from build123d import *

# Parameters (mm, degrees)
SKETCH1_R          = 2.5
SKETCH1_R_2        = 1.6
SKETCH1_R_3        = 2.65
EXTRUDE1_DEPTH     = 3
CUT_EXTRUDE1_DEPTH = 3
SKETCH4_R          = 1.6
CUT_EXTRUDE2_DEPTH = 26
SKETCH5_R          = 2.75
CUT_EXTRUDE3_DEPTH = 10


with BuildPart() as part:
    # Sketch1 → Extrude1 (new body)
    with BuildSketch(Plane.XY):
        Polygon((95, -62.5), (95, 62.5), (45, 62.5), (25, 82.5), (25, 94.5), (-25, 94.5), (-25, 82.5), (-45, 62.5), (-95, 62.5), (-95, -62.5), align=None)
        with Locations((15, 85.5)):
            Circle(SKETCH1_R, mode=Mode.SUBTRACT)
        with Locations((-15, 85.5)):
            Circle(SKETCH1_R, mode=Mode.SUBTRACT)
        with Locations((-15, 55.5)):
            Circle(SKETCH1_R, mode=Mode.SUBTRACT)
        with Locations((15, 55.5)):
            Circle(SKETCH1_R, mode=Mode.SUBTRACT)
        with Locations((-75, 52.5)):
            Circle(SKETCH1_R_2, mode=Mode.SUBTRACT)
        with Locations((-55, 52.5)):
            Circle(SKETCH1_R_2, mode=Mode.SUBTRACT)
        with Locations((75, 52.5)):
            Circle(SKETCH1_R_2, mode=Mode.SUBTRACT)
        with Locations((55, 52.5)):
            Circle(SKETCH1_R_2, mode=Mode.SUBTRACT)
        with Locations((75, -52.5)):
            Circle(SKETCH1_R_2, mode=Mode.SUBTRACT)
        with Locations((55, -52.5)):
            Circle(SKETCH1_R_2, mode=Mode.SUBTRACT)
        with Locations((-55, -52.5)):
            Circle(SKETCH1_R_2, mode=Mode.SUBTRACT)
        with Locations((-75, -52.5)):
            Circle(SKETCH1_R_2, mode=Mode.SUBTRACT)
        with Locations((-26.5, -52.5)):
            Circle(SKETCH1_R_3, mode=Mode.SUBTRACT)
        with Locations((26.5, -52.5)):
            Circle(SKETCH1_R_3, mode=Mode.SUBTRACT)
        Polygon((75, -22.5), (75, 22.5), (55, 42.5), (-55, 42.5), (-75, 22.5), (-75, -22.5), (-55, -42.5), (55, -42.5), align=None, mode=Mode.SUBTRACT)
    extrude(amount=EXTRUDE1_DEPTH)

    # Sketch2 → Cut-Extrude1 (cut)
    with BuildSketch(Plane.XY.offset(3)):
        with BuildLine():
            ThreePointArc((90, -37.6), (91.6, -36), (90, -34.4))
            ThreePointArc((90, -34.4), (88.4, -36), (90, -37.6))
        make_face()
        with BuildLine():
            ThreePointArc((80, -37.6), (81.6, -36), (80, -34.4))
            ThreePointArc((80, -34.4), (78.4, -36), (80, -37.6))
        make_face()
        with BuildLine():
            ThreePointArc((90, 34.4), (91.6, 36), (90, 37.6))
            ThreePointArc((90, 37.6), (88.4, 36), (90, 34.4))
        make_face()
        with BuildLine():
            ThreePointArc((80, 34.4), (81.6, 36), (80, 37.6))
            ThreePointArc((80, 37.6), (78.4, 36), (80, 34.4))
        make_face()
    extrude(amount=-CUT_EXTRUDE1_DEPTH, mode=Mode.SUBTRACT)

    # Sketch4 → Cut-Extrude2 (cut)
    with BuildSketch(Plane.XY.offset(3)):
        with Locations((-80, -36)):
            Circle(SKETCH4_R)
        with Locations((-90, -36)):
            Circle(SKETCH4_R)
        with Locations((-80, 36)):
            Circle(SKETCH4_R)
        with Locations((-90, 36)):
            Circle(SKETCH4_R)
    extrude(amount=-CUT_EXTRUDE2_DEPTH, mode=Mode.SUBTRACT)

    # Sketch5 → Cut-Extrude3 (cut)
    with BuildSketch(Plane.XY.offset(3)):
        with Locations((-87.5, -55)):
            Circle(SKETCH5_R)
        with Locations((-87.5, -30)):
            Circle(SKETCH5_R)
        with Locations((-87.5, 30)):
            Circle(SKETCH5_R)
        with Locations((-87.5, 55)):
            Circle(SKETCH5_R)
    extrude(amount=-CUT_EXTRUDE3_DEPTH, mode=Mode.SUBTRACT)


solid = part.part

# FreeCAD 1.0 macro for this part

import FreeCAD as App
import Part
import Sketcher

doc = App.newDocument("Part")
body = doc.addObject("PartDesign::Body", "Body")

sketch1 = doc.addObject("Sketcher::SketchObject", "Sketch")
body.addObject(sketch1)
sketch1.AttachmentSupport = (doc.XY_Plane, [""])
sketch1.MapMode = "FlatFace"
sketch1.addGeometry(Part.LineSegment(App.Vector(95, -62.5, 0), App.Vector(95, 62.5, 0)), False)
sketch1.addGeometry(Part.LineSegment(App.Vector(95, 62.5, 0), App.Vector(45, 62.5, 0)), False)
sketch1.addGeometry(Part.LineSegment(App.Vector(45, 62.5, 0), App.Vector(25, 82.5, 0)), False)
sketch1.addGeometry(Part.LineSegment(App.Vector(25, 82.5, 0), App.Vector(25, 94.5, 0)), False)
sketch1.addGeometry(Part.LineSegment(App.Vector(25, 94.5, 0), App.Vector(-25, 94.5, 0)), False)
sketch1.addGeometry(Part.LineSegment(App.Vector(-25, 94.5, 0), App.Vector(-25, 82.5, 0)), False)
sketch1.addGeometry(Part.LineSegment(App.Vector(-25, 82.5, 0), App.Vector(-45, 62.5, 0)), False)
sketch1.addGeometry(Part.LineSegment(App.Vector(-45, 62.5, 0), App.Vector(-95, 62.5, 0)), False)
sketch1.addGeometry(Part.LineSegment(App.Vector(-95, 62.5, 0), App.Vector(-95, -62.5, 0)), False)
sketch1.addGeometry(Part.LineSegment(App.Vector(-95, -62.5, 0), App.Vector(95, -62.5, 0)), False)
sketch1.addGeometry(Part.Circle(App.Vector(-75, -52.5, 0), App.Vector(0, 0, 1), 1.6), False)
sketch1.addGeometry(Part.Circle(App.Vector(-55, -52.5, 0), App.Vector(0, 0, 1), 1.6), False)
sketch1.addGeometry(Part.Circle(App.Vector(-26.5, -52.5, 0), App.Vector(0, 0, 1), 2.6), False)
sketch1.addGeometry(Part.Circle(App.Vector(26.5, -52.5, 0), App.Vector(0, 0, 1), 2.6), False)
sketch1.addGeometry(Part.Circle(App.Vector(55, -52.5, 0), App.Vector(0, 0, 1), 1.6), False)
sketch1.addGeometry(Part.Circle(App.Vector(75, -52.5, 0), App.Vector(0, 0, 1), 1.6), False)
sketch1.addGeometry(Part.LineSegment(App.Vector(75, 22.5, 0), App.Vector(75, -22.5, 0)), False)
sketch1.addGeometry(Part.LineSegment(App.Vector(75, -22.5, 0), App.Vector(55, -42.5, 0)), False)
sketch1.addGeometry(Part.LineSegment(App.Vector(55, -42.5, 0), App.Vector(-55, -42.5, 0)), False)
sketch1.addGeometry(Part.LineSegment(App.Vector(-55, -42.5, 0), App.Vector(-75, -22.5, 0)), False)
sketch1.addGeometry(Part.LineSegment(App.Vector(-75, -22.5, 0), App.Vector(-75, 22.5, 0)), False)
sketch1.addGeometry(Part.LineSegment(App.Vector(-75, 22.5, 0), App.Vector(-55, 42.5, 0)), False)
sketch1.addGeometry(Part.LineSegment(App.Vector(-55, 42.5, 0), App.Vector(55, 42.5, 0)), False)
sketch1.addGeometry(Part.LineSegment(App.Vector(55, 42.5, 0), App.Vector(75, 22.5, 0)), False)
sketch1.addGeometry(Part.Circle(App.Vector(-75, 52.5, 0), App.Vector(0, 0, 1), 1.6), False)
sketch1.addGeometry(Part.Circle(App.Vector(-55, 52.5, 0), App.Vector(0, 0, 1), 1.6), False)
sketch1.addGeometry(Part.Circle(App.Vector(-15, 55.5, 0), App.Vector(0, 0, 1), 2.5), False)
sketch1.addGeometry(Part.Circle(App.Vector(-15, 85.5, 0), App.Vector(0, 0, 1), 2.5), False)
sketch1.addGeometry(Part.Circle(App.Vector(15, 55.5, 0), App.Vector(0, 0, 1), 2.5), False)
sketch1.addGeometry(Part.Circle(App.Vector(15, 85.5, 0), App.Vector(0, 0, 1), 2.5), False)
sketch1.addGeometry(Part.Circle(App.Vector(55, 52.5, 0), App.Vector(0, 0, 1), 1.6), False)
sketch1.addGeometry(Part.Circle(App.Vector(75, 52.5, 0), App.Vector(0, 0, 1), 1.6), False)
sketch1.addConstraint(Sketcher.Constraint("Coincident", 0, 2, 1, 1))
sketch1.addConstraint(Sketcher.Constraint("Coincident", 1, 2, 2, 1))
sketch1.addConstraint(Sketcher.Constraint("Coincident", 2, 2, 3, 1))
sketch1.addConstraint(Sketcher.Constraint("Coincident", 3, 2, 4, 1))
sketch1.addConstraint(Sketcher.Constraint("Coincident", 4, 2, 5, 1))
sketch1.addConstraint(Sketcher.Constraint("Coincident", 5, 2, 6, 1))
sketch1.addConstraint(Sketcher.Constraint("Coincident", 6, 2, 7, 1))
sketch1.addConstraint(Sketcher.Constraint("Coincident", 7, 2, 8, 1))
sketch1.addConstraint(Sketcher.Constraint("Coincident", 8, 2, 9, 1))
sketch1.addConstraint(Sketcher.Constraint("Coincident", 9, 2, 0, 1))
sketch1.addConstraint(Sketcher.Constraint("Coincident", 16, 2, 17, 1))
sketch1.addConstraint(Sketcher.Constraint("Coincident", 17, 2, 18, 1))
sketch1.addConstraint(Sketcher.Constraint("Coincident", 18, 2, 19, 1))
sketch1.addConstraint(Sketcher.Constraint("Coincident", 19, 2, 20, 1))
sketch1.addConstraint(Sketcher.Constraint("Coincident", 20, 2, 21, 1))
sketch1.addConstraint(Sketcher.Constraint("Coincident", 21, 2, 22, 1))
sketch1.addConstraint(Sketcher.Constraint("Coincident", 22, 2, 23, 1))
sketch1.addConstraint(Sketcher.Constraint("Coincident", 23, 2, 16, 1))
sketch1.addConstraint(Sketcher.Constraint("Vertical", 0))
sketch1.addConstraint(Sketcher.Constraint("Horizontal", 1))
sketch1.addConstraint(Sketcher.Constraint("Vertical", 3))
sketch1.addConstraint(Sketcher.Constraint("Horizontal", 4))
sketch1.addConstraint(Sketcher.Constraint("Vertical", 5))
sketch1.addConstraint(Sketcher.Constraint("Horizontal", 7))
sketch1.addConstraint(Sketcher.Constraint("Vertical", 8))
sketch1.addConstraint(Sketcher.Constraint("Horizontal", 9))
sketch1.addConstraint(Sketcher.Constraint("Vertical", 16))
sketch1.addConstraint(Sketcher.Constraint("Horizontal", 18))
sketch1.addConstraint(Sketcher.Constraint("Vertical", 20))
sketch1.addConstraint(Sketcher.Constraint("Horizontal", 22))
sketch1.addConstraint(Sketcher.Constraint("Equal", 10, 11))
sketch1.addConstraint(Sketcher.Constraint("Equal", 12, 13))
sketch1.addConstraint(Sketcher.Constraint("Equal", 11, 14))
sketch1.addConstraint(Sketcher.Constraint("Equal", 14, 15))
sketch1.addConstraint(Sketcher.Constraint("Equal", 15, 24))
sketch1.addConstraint(Sketcher.Constraint("Equal", 24, 25))
sketch1.addConstraint(Sketcher.Constraint("Equal", 26, 27))
sketch1.addConstraint(Sketcher.Constraint("Equal", 27, 28))
sketch1.addConstraint(Sketcher.Constraint("Equal", 28, 29))
sketch1.addConstraint(Sketcher.Constraint("Equal", 25, 30))
sketch1.addConstraint(Sketcher.Constraint("Equal", 30, 31))
sketch1.addConstraint(Sketcher.Constraint("Symmetric", 15, 3, 24, 3, -1, 1))
sketch1.addConstraint(Sketcher.Constraint("Symmetric", 14, 3, 25, 3, -1, 1))
sketch1.addConstraint(Sketcher.Constraint("Symmetric", 11, 3, 30, 3, -1, 1))
sketch1.addConstraint(Sketcher.Constraint("Symmetric", 10, 3, 31, 3, -1, 1))
sketch1.addConstraint(Sketcher.Constraint("Symmetric", 0, 2, 8, 2, -1, 1))
sketch1.addConstraint(Sketcher.Constraint("Symmetric", 16, 2, 20, 2, -1, 1))
sketch1.addConstraint(Sketcher.Constraint("Symmetric", 17, 2, 21, 2, -1, 1))
sketch1.addConstraint(Sketcher.Constraint("Symmetric", 12, 3, 13, 3, -2))
sketch1.addConstraint(Sketcher.Constraint("Symmetric", 11, 3, 14, 3, -2))
sketch1.addConstraint(Sketcher.Constraint("Symmetric", 10, 3, 15, 3, -2))
sketch1.addConstraint(Sketcher.Constraint("Symmetric", 26, 3, 28, 3, -2))
sketch1.addConstraint(Sketcher.Constraint("Symmetric", 27, 3, 29, 3, -2))
sketch1.addConstraint(Sketcher.Constraint("Symmetric", 2, 2, 5, 2, -2))
sketch1.addConstraint(Sketcher.Constraint("Symmetric", 1, 2, 6, 2, -2))
sketch1.addConstraint(Sketcher.Constraint("Perpendicular", 2, 6))
sketch1.addConstraint(Sketcher.Constraint("Parallel", 6, 17))
sketch1.addConstraint(Sketcher.Constraint("Perpendicular", 17, 19))
sketch1.addConstraint(Sketcher.Constraint("Perpendicular", 21, 23))
sketch1.addConstraint(Sketcher.Constraint("Horizontal", 10, 3, 11, 3))
sketch1.addConstraint(Sketcher.Constraint("Horizontal", 11, 3, 12, 3))
sketch1.addConstraint(Sketcher.Constraint("Horizontal", 16, 2, 19, 2))
sketch1.addConstraint(Sketcher.Constraint("Horizontal", 20, 2, 23, 2))
sketch1.addConstraint(Sketcher.Constraint("Vertical", 26, 3, 27, 3))
sketch1.addConstraint(Sketcher.Constraint("Vertical", 31, 3, 16, 2))
sketch1.addConstraint(Sketcher.Constraint("Vertical", 30, 3, 17, 2))
sketch1.addConstraint(Sketcher.Constraint("Equal", 1, 4))
sketch1.addConstraint(Sketcher.Constraint("Equal", 6, 17))
sketch1.addConstraint(Sketcher.Constraint("Diameter", 26, 5.0))
sketch1.addConstraint(Sketcher.Constraint("Diameter", 10, 3.2))
sketch1.addConstraint(Sketcher.Constraint("Diameter", 12, 5.3))
sketch1.addConstraint(Sketcher.Constraint("DistanceX", 1, 2, 1, 1, 50.0))
sketch1.addConstraint(Sketcher.Constraint("DistanceX", 9, 1, 9, 2, 190.0))
sketch1.addConstraint(Sketcher.Constraint("DistanceX", 18, 2, 18, 1, 110.0))
sketch1.addConstraint(Sketcher.Constraint("DistanceY", 0, 1, 0, 2, 125.0))
sketch1.addConstraint(Sketcher.Constraint("DistanceY", 3, 1, 3, 2, 12.0))
sketch1.addConstraint(Sketcher.Constraint("DistanceY", 16, 2, 16, 1, 45.0))
sketch1.addConstraint(Sketcher.Constraint("DistanceX", 26, 3, -1, 1, 15.0))
sketch1.addConstraint(Sketcher.Constraint("DistanceX", 12, 3, 13, 3, 53.0))
sketch1.addConstraint(Sketcher.Constraint("DistanceY", 10, 3, 24, 3, 105.0))
sketch1.addConstraint(Sketcher.Constraint("DistanceY", 25, 3, 26, 3, 3.0))
sketch1.addConstraint(Sketcher.Constraint("DistanceY", 26, 3, 27, 3, 30.0))
pad1 = doc.addObject("PartDesign::Pad", "Pad")
body.addObject(pad1)
pad1.Profile = sketch1
pad1.Length = 3

sketch2 = doc.addObject("Sketcher::SketchObject", "Sketch001")
body.addObject(sketch2)
sketch2.AttachmentSupport = (doc.XY_Plane, [""])
sketch2.MapMode = "FlatFace"
sketch2.AttachmentOffset = App.Placement(App.Vector(0, 0, 3), App.Rotation())
sketch2.addGeometry(Part.Circle(App.Vector(90, -36, 0), App.Vector(0, 0, 1), 1.6), False)
sketch2.addGeometry(Part.Circle(App.Vector(80, -36, 0), App.Vector(0, 0, 1), 1.6), False)
sketch2.addGeometry(Part.Circle(App.Vector(90, 36, 0), App.Vector(0, 0, 1), 1.6), False)
sketch2.addGeometry(Part.Circle(App.Vector(80, 36, 0), App.Vector(0, 0, 1), 1.6), False)
sketch2.addConstraint(Sketcher.Constraint("Equal", 0, 1))
sketch2.addConstraint(Sketcher.Constraint("Equal", 1, 2))
sketch2.addConstraint(Sketcher.Constraint("Equal", 2, 3))
sketch2.addConstraint(Sketcher.Constraint("Symmetric", 0, 3, 2, 3, -1))
sketch2.addConstraint(Sketcher.Constraint("Symmetric", 1, 3, 3, 3, -1))
sketch2.addConstraint(Sketcher.Constraint("Horizontal", 0, 3, 1, 3))
sketch2.addConstraint(Sketcher.Constraint("Diameter", 0, 3.2))
sketch2.addConstraint(Sketcher.Constraint("DistanceX", -1, 1, 0, 3, 90.0))
sketch2.addConstraint(Sketcher.Constraint("DistanceY", 0, 3, -1, 1, 36.0))
sketch2.addConstraint(Sketcher.Constraint("DistanceX", -1, 1, 1, 3, 80.0))
pocket1 = doc.addObject("PartDesign::Pocket", "Pocket")
body.addObject(pocket1)
pocket1.Profile = sketch2
pocket1.Length = 3

sketch3 = doc.addObject("Sketcher::SketchObject", "Sketch002")
body.addObject(sketch3)
sketch3.AttachmentSupport = (doc.XY_Plane, [""])
sketch3.MapMode = "FlatFace"
sketch3.AttachmentOffset = App.Placement(App.Vector(0, 0, 3), App.Rotation())
sketch3.addGeometry(Part.Circle(App.Vector(-80, -36, 0), App.Vector(0, 0, 1), 1.6), False)
sketch3.addGeometry(Part.Circle(App.Vector(-90, -36, 0), App.Vector(0, 0, 1), 1.6), False)
sketch3.addGeometry(Part.Circle(App.Vector(-80, 36, 0), App.Vector(0, 0, 1), 1.6), False)
sketch3.addGeometry(Part.Circle(App.Vector(-90, 36, 0), App.Vector(0, 0, 1), 1.6), False)
sketch3.addConstraint(Sketcher.Constraint("Equal", 0, 1))
sketch3.addConstraint(Sketcher.Constraint("Equal", 1, 2))
sketch3.addConstraint(Sketcher.Constraint("Equal", 2, 3))
sketch3.addConstraint(Sketcher.Constraint("Symmetric", 0, 3, 2, 3, -1))
sketch3.addConstraint(Sketcher.Constraint("Symmetric", 1, 3, 3, 3, -1))
sketch3.addConstraint(Sketcher.Constraint("Horizontal", 0, 3, 1, 3))
sketch3.addConstraint(Sketcher.Constraint("Diameter", 0, 3.2))
sketch3.addConstraint(Sketcher.Constraint("DistanceX", 0, 3, -1, 1, 80.0))
sketch3.addConstraint(Sketcher.Constraint("DistanceY", 0, 3, -1, 1, 36.0))
sketch3.addConstraint(Sketcher.Constraint("DistanceX", 1, 3, -1, 1, 90.0))
pocket2 = doc.addObject("PartDesign::Pocket", "Pocket001")
body.addObject(pocket2)
pocket2.Profile = sketch3
pocket2.Length = 26

sketch4 = doc.addObject("Sketcher::SketchObject", "Sketch003")
body.addObject(sketch4)
sketch4.AttachmentSupport = (doc.XY_Plane, [""])
sketch4.MapMode = "FlatFace"
sketch4.AttachmentOffset = App.Placement(App.Vector(0, 0, 3), App.Rotation())
sketch4.addGeometry(Part.Circle(App.Vector(-87.5, -55, 0), App.Vector(0, 0, 1), 2.8), False)
sketch4.addGeometry(Part.Circle(App.Vector(-87.5, -30, 0), App.Vector(0, 0, 1), 2.8), False)
sketch4.addGeometry(Part.Circle(App.Vector(-87.5, 30, 0), App.Vector(0, 0, 1), 2.8), False)
sketch4.addGeometry(Part.Circle(App.Vector(-87.5, 55, 0), App.Vector(0, 0, 1), 2.8), False)
sketch4.addConstraint(Sketcher.Constraint("Equal", 0, 1))
sketch4.addConstraint(Sketcher.Constraint("Equal", 1, 2))
sketch4.addConstraint(Sketcher.Constraint("Equal", 2, 3))
sketch4.addConstraint(Sketcher.Constraint("Symmetric", 1, 3, 2, 3, -1))
sketch4.addConstraint(Sketcher.Constraint("Symmetric", 0, 3, 3, 3, -1))
sketch4.addConstraint(Sketcher.Constraint("Vertical", 0, 3, 1, 3))
sketch4.addConstraint(Sketcher.Constraint("Diameter", 0, 5.5))
sketch4.addConstraint(Sketcher.Constraint("DistanceY", 0, 3, -1, 1, 55.0))
sketch4.addConstraint(Sketcher.Constraint("DistanceY", 1, 3, -1, 1, 30.0))
sketch4.addConstraint(Sketcher.Constraint("DistanceX", 0, 3, -1, 1, 87.5))
pocket3 = doc.addObject("PartDesign::Pocket", "Pocket002")
body.addObject(pocket3)
pocket3.Profile = sketch4
pocket3.Length = 10

doc.recompute()
